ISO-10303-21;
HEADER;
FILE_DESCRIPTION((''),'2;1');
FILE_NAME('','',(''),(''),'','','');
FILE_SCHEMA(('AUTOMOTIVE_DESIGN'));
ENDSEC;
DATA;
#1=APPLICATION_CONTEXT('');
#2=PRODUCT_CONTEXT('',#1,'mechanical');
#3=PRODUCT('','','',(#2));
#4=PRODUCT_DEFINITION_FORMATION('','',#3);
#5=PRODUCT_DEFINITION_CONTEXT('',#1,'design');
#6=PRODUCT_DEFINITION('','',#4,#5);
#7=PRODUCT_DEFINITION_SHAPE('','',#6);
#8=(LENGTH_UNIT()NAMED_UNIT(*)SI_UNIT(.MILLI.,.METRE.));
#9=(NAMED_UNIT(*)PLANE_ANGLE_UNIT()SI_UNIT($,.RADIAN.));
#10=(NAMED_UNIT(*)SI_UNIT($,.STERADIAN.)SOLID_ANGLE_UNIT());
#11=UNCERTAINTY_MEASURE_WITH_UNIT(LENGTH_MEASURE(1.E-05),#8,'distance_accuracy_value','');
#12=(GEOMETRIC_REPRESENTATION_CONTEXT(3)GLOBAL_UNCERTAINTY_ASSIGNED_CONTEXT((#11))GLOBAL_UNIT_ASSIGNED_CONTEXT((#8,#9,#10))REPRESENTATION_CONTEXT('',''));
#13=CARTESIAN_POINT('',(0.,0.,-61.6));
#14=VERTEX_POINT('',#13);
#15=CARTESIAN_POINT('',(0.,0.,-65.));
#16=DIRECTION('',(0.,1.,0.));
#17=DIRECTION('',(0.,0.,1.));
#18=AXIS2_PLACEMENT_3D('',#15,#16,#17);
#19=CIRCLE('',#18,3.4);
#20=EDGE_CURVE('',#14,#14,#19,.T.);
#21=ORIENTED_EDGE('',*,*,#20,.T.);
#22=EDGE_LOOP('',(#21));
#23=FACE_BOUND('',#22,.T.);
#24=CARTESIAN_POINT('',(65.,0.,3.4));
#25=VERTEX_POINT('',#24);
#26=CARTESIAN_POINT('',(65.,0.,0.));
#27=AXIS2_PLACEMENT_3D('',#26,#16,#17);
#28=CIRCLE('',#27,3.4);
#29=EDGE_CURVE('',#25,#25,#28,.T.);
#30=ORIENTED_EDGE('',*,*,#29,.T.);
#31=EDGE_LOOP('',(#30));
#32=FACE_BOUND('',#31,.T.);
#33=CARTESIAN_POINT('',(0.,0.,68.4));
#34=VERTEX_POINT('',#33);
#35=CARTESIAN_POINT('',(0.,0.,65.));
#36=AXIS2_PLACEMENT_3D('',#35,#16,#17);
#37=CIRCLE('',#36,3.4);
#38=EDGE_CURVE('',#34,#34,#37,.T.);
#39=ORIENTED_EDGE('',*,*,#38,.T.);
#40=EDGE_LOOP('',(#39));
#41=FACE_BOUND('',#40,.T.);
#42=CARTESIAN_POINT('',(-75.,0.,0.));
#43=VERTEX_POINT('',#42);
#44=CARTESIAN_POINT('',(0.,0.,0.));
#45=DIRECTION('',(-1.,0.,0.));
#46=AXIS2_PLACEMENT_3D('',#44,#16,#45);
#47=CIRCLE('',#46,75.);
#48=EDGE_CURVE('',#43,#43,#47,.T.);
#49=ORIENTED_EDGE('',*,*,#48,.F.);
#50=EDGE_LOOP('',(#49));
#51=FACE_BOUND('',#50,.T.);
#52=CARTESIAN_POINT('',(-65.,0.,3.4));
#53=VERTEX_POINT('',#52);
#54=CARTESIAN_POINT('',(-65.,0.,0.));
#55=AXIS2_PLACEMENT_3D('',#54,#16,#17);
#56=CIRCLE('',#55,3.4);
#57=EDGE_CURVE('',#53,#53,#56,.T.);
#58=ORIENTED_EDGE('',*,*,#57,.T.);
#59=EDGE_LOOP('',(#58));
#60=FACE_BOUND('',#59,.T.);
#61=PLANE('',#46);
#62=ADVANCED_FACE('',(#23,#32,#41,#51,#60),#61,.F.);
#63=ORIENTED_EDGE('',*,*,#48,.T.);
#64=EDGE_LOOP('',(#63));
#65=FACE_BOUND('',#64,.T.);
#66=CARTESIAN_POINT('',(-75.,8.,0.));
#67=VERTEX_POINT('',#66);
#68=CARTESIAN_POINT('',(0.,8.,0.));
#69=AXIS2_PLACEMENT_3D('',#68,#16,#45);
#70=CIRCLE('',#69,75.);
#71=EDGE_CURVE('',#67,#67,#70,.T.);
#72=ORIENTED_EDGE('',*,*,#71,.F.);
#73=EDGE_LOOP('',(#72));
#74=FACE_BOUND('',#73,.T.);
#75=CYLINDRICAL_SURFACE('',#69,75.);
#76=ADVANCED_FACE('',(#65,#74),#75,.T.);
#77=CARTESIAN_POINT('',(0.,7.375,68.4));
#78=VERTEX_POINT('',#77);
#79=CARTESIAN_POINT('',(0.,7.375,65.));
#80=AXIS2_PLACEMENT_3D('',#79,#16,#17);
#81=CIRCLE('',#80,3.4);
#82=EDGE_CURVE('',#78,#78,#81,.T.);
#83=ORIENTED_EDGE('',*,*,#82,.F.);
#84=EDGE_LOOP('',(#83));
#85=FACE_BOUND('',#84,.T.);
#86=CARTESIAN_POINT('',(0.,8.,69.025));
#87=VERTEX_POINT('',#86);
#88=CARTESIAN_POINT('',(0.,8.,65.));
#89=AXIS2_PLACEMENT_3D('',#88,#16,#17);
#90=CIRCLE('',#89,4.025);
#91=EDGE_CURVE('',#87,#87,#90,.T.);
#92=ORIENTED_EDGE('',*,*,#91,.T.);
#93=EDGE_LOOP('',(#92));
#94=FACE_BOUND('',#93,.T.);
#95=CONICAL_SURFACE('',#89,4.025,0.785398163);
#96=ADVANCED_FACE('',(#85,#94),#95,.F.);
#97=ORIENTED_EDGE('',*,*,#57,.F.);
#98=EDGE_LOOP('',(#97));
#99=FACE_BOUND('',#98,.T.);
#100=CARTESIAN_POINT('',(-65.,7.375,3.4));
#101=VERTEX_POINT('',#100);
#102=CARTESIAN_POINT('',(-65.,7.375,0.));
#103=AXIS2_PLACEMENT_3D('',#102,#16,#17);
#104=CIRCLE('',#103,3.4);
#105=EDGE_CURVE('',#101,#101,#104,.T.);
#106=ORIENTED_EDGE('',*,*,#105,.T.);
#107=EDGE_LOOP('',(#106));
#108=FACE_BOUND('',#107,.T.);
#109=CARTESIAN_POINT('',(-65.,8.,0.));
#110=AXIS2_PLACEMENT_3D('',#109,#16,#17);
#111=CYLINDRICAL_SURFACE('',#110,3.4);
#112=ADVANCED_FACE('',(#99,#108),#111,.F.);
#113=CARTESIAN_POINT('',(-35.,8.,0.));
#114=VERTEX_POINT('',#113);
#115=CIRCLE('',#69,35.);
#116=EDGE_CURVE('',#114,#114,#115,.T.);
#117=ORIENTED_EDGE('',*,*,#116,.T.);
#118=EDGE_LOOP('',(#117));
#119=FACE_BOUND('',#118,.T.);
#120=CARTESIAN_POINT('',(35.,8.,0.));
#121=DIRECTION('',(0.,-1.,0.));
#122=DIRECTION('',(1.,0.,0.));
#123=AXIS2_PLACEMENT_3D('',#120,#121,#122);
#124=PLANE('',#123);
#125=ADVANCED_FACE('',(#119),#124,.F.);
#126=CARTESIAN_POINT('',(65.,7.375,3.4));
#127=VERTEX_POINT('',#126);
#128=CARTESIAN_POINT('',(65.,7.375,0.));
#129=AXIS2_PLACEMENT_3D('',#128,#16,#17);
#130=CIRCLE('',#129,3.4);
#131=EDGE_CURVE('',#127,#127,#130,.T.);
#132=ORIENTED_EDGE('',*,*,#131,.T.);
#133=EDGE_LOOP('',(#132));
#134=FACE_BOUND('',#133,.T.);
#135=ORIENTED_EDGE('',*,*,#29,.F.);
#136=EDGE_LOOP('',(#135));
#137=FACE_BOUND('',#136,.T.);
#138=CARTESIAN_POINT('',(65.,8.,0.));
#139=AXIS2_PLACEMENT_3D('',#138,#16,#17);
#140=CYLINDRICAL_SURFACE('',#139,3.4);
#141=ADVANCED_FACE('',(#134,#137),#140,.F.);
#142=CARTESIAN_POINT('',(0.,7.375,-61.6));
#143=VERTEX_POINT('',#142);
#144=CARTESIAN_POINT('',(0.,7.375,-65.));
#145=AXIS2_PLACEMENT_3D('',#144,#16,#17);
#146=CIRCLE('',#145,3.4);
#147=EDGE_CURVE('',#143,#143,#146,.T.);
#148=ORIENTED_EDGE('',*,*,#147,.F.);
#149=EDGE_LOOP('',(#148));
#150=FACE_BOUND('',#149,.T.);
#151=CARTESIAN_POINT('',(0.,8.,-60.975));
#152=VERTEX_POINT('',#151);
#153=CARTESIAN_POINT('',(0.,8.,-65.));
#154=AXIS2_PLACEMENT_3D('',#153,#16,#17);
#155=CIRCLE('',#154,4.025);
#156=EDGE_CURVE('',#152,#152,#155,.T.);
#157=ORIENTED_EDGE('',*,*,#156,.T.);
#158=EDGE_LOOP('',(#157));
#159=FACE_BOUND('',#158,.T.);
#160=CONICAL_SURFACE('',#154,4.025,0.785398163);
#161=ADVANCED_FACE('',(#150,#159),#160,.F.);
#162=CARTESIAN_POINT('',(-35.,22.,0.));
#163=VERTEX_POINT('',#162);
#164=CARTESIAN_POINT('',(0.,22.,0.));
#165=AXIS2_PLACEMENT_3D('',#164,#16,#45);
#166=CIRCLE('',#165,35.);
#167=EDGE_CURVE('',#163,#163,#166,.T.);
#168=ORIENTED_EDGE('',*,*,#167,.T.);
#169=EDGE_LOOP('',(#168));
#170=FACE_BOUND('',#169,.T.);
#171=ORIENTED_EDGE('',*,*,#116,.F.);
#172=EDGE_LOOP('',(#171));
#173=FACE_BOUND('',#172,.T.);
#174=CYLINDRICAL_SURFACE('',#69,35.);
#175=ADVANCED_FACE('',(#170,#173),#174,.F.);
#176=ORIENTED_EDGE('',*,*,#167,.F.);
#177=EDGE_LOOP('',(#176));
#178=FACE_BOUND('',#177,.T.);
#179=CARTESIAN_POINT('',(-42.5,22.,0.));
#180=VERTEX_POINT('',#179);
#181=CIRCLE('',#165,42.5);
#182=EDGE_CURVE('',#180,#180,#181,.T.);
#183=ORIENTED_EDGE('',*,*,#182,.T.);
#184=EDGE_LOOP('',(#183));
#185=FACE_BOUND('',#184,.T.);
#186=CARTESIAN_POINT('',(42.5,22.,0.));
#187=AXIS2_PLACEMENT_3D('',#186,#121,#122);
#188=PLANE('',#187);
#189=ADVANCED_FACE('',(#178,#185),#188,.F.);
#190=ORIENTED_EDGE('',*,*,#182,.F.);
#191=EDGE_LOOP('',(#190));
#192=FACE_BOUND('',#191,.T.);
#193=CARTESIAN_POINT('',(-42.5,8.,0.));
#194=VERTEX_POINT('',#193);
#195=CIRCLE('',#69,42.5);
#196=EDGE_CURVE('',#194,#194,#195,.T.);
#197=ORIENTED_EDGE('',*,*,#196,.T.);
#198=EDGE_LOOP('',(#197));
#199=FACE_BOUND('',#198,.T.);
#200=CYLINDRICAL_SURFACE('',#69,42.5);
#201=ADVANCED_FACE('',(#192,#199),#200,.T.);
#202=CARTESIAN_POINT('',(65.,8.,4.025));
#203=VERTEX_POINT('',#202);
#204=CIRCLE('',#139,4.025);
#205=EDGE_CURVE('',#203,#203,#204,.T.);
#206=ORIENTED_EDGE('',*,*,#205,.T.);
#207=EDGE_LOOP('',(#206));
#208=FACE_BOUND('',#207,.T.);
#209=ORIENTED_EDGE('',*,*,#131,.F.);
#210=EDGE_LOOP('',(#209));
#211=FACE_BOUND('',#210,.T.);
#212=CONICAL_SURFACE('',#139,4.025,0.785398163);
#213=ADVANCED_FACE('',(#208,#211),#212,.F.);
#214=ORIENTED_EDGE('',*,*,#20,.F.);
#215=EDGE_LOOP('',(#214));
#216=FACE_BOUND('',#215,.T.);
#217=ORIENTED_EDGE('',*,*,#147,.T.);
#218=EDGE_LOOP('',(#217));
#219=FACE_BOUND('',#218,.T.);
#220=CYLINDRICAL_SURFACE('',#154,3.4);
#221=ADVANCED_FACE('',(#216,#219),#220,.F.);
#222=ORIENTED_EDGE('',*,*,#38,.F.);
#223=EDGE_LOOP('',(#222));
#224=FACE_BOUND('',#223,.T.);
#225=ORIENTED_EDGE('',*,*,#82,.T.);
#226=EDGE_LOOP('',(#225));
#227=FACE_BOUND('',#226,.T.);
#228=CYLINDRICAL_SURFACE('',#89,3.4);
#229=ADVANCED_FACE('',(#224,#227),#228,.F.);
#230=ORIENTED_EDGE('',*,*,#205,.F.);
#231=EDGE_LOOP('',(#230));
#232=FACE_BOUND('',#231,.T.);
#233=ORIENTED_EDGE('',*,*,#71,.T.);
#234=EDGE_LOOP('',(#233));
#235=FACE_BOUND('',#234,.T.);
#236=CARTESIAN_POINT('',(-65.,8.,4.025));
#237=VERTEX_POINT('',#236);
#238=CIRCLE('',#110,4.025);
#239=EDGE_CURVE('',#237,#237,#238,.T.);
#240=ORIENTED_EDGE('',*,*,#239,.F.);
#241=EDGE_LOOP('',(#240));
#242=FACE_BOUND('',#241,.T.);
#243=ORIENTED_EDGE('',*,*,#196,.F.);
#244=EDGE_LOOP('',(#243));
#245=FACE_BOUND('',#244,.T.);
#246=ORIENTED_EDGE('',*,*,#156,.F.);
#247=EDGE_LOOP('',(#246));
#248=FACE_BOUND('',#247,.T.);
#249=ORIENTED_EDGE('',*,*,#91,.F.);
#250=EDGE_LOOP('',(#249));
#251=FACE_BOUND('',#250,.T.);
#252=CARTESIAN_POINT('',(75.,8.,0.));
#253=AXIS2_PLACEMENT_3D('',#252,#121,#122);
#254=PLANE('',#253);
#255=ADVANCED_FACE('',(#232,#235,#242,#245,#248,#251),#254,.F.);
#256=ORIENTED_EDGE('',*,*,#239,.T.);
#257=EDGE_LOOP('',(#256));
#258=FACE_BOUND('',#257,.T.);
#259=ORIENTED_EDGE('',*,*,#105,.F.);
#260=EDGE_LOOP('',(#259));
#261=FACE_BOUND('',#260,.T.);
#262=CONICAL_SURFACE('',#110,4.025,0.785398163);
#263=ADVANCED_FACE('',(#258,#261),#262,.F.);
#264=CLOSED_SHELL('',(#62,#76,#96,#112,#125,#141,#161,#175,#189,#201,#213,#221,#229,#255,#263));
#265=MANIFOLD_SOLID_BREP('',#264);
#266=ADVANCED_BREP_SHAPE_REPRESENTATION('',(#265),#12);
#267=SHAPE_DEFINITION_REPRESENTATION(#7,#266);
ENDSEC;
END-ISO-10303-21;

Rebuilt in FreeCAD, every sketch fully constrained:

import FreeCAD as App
import Part
import Sketcher

V = App.Vector

doc = App.newDocument("Part")
body = doc.addObject("PartDesign::Body", "Body")

sketch1 = body.newObject("Sketcher::SketchObject", "Sketch")
sketch1.AttachmentSupport = (doc.getObject("XY_Plane"), [""])
sketch1.MapMode = "FlatFace"
sketch1.addGeometry(Part.LineSegment(V(0, 0, 0), V(75, 0, 0)), False)
sketch1.addGeometry(Part.LineSegment(V(75, 0, 0), V(75, 8, 0)), False)
sketch1.addGeometry(Part.LineSegment(V(75, 8, 0), V(42.5, 8, 0)), False)
sketch1.addGeometry(Part.LineSegment(V(42.5, 8, 0), V(42.5, 22, 0)), False)
sketch1.addGeometry(Part.LineSegment(V(42.5, 22, 0), V(35, 22, 0)), False)
sketch1.addGeometry(Part.LineSegment(V(35, 22, 0), V(35, 8, 0)), False)
sketch1.addGeometry(Part.LineSegment(V(35, 8, 0), V(0, 8, 0)), False)
sketch1.addGeometry(Part.LineSegment(V(0, 8, 0), V(0, 0, 0)), False)
sketch1.addConstraint(Sketcher.Constraint("Coincident", 0, 2, 1, 1))
sketch1.addConstraint(Sketcher.Constraint("Coincident", 1, 2, 2, 1))
sketch1.addConstraint(Sketcher.Constraint("Coincident", 2, 2, 3, 1))
sketch1.addConstraint(Sketcher.Constraint("Coincident", 3, 2, 4, 1))
sketch1.addConstraint(Sketcher.Constraint("Coincident", 4, 2, 5, 1))
sketch1.addConstraint(Sketcher.Constraint("Coincident", 5, 2, 6, 1))
sketch1.addConstraint(Sketcher.Constraint("Coincident", 6, 2, 7, 1))
sketch1.addConstraint(Sketcher.Constraint("Coincident", 7, 2, 0, 1))
sketch1.addConstraint(Sketcher.Constraint("Horizontal", 0))
sketch1.addConstraint(Sketcher.Constraint("Vertical", 1))
sketch1.addConstraint(Sketcher.Constraint("Horizontal", 2))
sketch1.addConstraint(Sketcher.Constraint("Vertical", 3))
sketch1.addConstraint(Sketcher.Constraint("Horizontal", 4))
sketch1.addConstraint(Sketcher.Constraint("Vertical", 5))
sketch1.addConstraint(Sketcher.Constraint("Horizontal", 6))
sketch1.addConstraint(Sketcher.Constraint("Vertical", 7))
sketch1.addConstraint(Sketcher.Constraint("Coincident", 7, 2, -1, 1))
sketch1.addConstraint(Sketcher.Constraint("Horizontal", 2, 2, 5, 2))
sketch1.addConstraint(Sketcher.Constraint("DistanceX", 0, 1, 0, 2, 75.0))
sketch1.addConstraint(Sketcher.Constraint("DistanceX", 6, 2, 6, 1, 35.0))
sketch1.addConstraint(Sketcher.Constraint("DistanceY", 1, 1, 1, 2, 8.0))
sketch1.addConstraint(Sketcher.Constraint("DistanceY", 3, 1, 3, 2, 14.0))
sketch1.addConstraint(Sketcher.Constraint("DistanceX", 2, 2, 2, 1, 32.5))
revolution = body.newObject("PartDesign::Revolution", "Revolution")
revolution.Profile = sketch1
revolution.ReferenceAxis = (sketch1, ["V_Axis"])
revolution.Angle = 360

sketch2 = body.newObject("Sketcher::SketchObject", "Sketch001")
sketch2.AttachmentSupport = (doc.getObject("XZ_Plane"), [""])
sketch2.MapMode = "FlatFace"
sketch2.AttachmentOffset = App.Placement(V(0, 0, -8), App.Rotation())
sketch2.addGeometry(Part.Circle(V(-65, 0, 0), V(0, 0, 1), 3.4), False)
sketch2.addGeometry(Part.Circle(V(65, 0, 0), V(0, 0, 1), 3.4), False)
sketch2.addGeometry(Part.Circle(V(0, 65, 0), V(0, 0, 1), 3.4), False)
sketch2.addGeometry(Part.Circle(V(0, -65, 0), V(0, 0, 1), 3.4), False)
sketch2.addConstraint(Sketcher.Constraint("Equal", 0, 1))
sketch2.addConstraint(Sketcher.Constraint("Equal", 1, 2))
sketch2.addConstraint(Sketcher.Constraint("Equal", 2, 3))
sketch2.addConstraint(Sketcher.Constraint("Symmetric", 0, 3, 1, 3, -1, 1))
sketch2.addConstraint(Sketcher.Constraint("Symmetric", 2, 3, 3, 3, -1, 1))
sketch2.addConstraint(Sketcher.Constraint("PointOnObject", 0, 3, -1))
sketch2.addConstraint(Sketcher.Constraint("PointOnObject", 2, 3, -2))
sketch2.addConstraint(Sketcher.Constraint("Diameter", 0, 6.8))
sketch2.addConstraint(Sketcher.Constraint("DistanceX", 0, 3, -1, 1, 65.0))
sketch2.addConstraint(Sketcher.Constraint("DistanceY", -1, 1, 2, 3, 65.0))
doc.recompute()
hole = body.newObject("PartDesign::Hole", "Hole")
hole.Profile = sketch2
hole.ThreadType = "None"
hole.Diameter = 6.8
hole.DepthType = "ThroughAll"
hole.HoleCutType = "Countersink"
hole.HoleCutDiameter = 8.05
hole.HoleCutCountersinkAngle = 90
hole.Reversed = True

doc.recompute()
